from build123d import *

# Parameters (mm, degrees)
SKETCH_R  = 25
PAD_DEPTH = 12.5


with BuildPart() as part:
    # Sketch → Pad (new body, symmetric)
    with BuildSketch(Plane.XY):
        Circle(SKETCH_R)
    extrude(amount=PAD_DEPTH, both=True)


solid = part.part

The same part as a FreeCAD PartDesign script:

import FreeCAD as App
import Part
import Sketcher
from FreeCAD import Vector

doc = App.newDocument("Part")
body = doc.addObject("PartDesign::Body", "Body")

# Sketch on XY plane
sketch1 = body.newObject("Sketcher::SketchObject", "Sketch")
sketch1.AttachmentSupport = (doc.getObject("XY_Plane"), [""])
sketch1.MapMode = "FlatFace"
sketch1.addGeometry(Part.Circle(Vector(0, 0, 0), Vector(0, 0, 1), 25), False)
sketch1.addConstraint(Sketcher.Constraint("Coincident", 0, 3, -1, 1))
sketch1.addConstraint(Sketcher.Constraint("Diameter", 0, 50.0))
pad1 = body.newObject("PartDesign::Pad", "Pad")
pad1.Profile = sketch1
pad1.Length = 25
pad1.Midplane = True

doc.recompute()
